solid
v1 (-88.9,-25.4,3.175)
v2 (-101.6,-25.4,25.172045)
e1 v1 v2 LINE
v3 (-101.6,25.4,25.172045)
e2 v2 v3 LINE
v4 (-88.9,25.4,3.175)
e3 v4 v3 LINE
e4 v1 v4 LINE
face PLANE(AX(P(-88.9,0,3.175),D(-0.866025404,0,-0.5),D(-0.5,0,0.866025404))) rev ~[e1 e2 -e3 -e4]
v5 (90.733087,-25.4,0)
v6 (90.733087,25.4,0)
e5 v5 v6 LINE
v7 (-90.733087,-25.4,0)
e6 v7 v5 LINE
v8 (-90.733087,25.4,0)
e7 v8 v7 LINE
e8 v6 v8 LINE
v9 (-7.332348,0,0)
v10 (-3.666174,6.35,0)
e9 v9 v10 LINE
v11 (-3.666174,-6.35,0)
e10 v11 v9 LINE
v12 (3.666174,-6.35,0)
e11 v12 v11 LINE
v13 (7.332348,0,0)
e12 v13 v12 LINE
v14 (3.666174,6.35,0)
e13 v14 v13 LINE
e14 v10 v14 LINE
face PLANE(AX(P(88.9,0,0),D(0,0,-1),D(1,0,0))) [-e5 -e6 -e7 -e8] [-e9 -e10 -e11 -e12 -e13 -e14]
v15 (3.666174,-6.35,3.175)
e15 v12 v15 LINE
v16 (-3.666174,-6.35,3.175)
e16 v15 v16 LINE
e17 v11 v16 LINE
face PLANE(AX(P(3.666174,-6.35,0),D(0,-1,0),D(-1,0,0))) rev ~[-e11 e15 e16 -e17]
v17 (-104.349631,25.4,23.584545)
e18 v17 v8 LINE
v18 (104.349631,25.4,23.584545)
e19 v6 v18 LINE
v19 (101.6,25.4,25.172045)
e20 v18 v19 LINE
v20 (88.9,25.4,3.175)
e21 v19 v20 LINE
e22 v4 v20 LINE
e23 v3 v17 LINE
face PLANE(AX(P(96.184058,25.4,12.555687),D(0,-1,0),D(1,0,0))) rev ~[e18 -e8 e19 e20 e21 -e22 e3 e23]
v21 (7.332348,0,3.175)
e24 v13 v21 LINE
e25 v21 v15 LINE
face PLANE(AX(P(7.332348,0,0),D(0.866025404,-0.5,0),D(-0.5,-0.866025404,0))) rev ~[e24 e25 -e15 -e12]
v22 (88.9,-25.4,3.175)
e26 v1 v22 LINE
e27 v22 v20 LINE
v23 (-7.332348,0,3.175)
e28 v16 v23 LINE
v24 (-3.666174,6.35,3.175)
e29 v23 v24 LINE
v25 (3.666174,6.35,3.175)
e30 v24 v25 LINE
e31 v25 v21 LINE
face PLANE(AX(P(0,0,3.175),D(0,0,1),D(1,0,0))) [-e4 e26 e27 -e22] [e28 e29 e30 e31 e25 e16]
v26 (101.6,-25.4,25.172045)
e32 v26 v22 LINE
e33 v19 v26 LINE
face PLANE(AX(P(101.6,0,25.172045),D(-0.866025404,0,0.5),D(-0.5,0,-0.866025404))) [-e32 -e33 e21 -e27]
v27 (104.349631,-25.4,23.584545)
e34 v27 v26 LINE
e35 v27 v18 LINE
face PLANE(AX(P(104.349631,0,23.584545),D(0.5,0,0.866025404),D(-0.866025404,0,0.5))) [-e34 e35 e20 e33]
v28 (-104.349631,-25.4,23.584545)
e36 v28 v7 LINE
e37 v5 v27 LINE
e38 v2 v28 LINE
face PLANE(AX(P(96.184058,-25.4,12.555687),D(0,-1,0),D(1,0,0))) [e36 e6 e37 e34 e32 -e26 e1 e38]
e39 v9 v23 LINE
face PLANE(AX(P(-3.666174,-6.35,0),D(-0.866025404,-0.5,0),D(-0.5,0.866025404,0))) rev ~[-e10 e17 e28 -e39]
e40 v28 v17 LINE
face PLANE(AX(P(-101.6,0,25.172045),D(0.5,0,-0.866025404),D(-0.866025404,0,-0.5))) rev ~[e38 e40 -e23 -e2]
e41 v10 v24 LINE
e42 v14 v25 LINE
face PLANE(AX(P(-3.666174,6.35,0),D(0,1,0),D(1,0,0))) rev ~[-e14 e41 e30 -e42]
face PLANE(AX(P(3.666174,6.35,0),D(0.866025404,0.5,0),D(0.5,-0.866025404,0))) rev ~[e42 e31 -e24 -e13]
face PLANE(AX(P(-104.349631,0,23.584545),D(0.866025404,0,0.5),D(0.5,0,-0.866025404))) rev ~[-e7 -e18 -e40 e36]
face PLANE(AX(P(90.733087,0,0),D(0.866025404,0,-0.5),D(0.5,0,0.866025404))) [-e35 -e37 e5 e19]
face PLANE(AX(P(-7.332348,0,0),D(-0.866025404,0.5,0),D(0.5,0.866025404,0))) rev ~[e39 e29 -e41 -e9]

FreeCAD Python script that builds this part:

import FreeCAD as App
import Part
import Sketcher
from FreeCAD import Vector
Q = App.Units.Quantity


def add_polygon(sketch, points):
    """Adds a closed chain of lines whose ends are joined by coincident constraints."""
    first, n = sketch.GeometryCount, len(points)
    for a, b in zip(points, points[1:] + points[:1]):
        sketch.addGeometry(Part.LineSegment(App.Vector(*a, 0), App.Vector(*b, 0)), False)
    for i in range(n):
        sketch.addConstraint(Sketcher.Constraint("Coincident", first + i, 2, first + (i + 1) % n, 1))

doc = App.newDocument("Part")
body = doc.addObject("PartDesign::Body", "Body")

sketch1 = body.newObject("Sketcher::SketchObject", "Sketch")
sketch1.AttachmentSupport = (doc.getObject("XY_Plane"), [""])
sketch1.MapMode = "FlatFace"
add_polygon(sketch1, [(-89, 25), (-89, -25), (89, -25), (89, 25)])
add_polygon(sketch1, [(4, -6), (-4, -6), (-7, 0), (-4, 6), (4, 6), (7, 0)])
sketch1.addConstraint(Sketcher.Constraint("Vertical", 0))
sketch1.addConstraint(Sketcher.Constraint("Horizontal", 1))
sketch1.addConstraint(Sketcher.Constraint("Vertical", 2))
sketch1.addConstraint(Sketcher.Constraint("Horizontal", 3))
sketch1.addConstraint(Sketcher.Constraint("Horizontal", 4))
sketch1.addConstraint(Sketcher.Constraint("Horizontal", 7))
sketch1.addConstraint(Sketcher.Constraint("Symmetric", 0, 2, 2, 2, -1, 1))
sketch1.addConstraint(Sketcher.Constraint("Symmetric", 4, 2, 7, 2, -1, 1))
sketch1.addConstraint(Sketcher.Constraint("Symmetric", 5, 2, 8, 2, -1, 1))
sketch1.addConstraint(Sketcher.Constraint("PointOnObject", 5, 2, -1))
sketch1.addConstraint(Sketcher.Constraint("Parallel", 6, 9))
sketch1.addConstraint(Sketcher.Constraint("Vertical", 4, 2, 6, 2))
sketch1.addConstraint(Sketcher.Constraint("DistanceX", 1, 1, 1, 2, Q("7 in")))
sketch1.addConstraint(Sketcher.Constraint("DistanceY", 0, 2, 0, 1, Q("2 in")))
sketch1.addConstraint(Sketcher.Constraint("Angle", 5, Q("120 deg")))
sketch1.addConstraint(Sketcher.Constraint("DistanceY", 4, 2, 6, 2, Q("0.5 in")))
sketch1.addConstraint(Sketcher.Constraint("DistanceX", 4, 2, 4, 1, 7.332348))
pad1 = body.newObject("PartDesign::Pad", "Pad")
pad1.Profile = sketch1
pad1.Length = Q("0.125 in")

sketch2 = body.newObject("Sketcher::SketchObject", "Sketch001")
sketch2.AttachmentSupport = (doc.getObject("XZ_Plane"), [""])
sketch2.MapMode = "FlatFace"
add_polygon(sketch2, [(-104.3, 23.6), (-90.7, 0), (-88.9, 0), (-88.9, 3.2), (-101.6, 25.2)])
add_polygon(sketch2, [(104.3, 23.6), (101.6, 25.2), (88.9, 3.2), (88.9, 0), (90.7, 0)])
sketch2.addConstraint(Sketcher.Constraint("Horizontal", 1))
sketch2.addConstraint(Sketcher.Constraint("Vertical", 2))
sketch2.addConstraint(Sketcher.Constraint("Vertical", 7))
sketch2.addConstraint(Sketcher.Constraint("Horizontal", 8))
sketch2.addConstraint(Sketcher.Constraint("Symmetric", 1, 2, 7, 2, -1, 1))
sketch2.addConstraint(Sketcher.Constraint("Symmetric", 3, 2, 5, 2, -2))
sketch2.addConstraint(Sketcher.Constraint("Symmetric", 0, 2, 8, 2, -2))
sketch2.addConstraint(Sketcher.Constraint("Symmetric", 4, 2, 9, 2, -2))
sketch2.addConstraint(Sketcher.Constraint("Parallel", 0, 3))
sketch2.addConstraint(Sketcher.Constraint("Perpendicular", 3, 4))
sketch2.addConstraint(Sketcher.Constraint("Perpendicular", 5, 6))
sketch2.addConstraint(Sketcher.Constraint("Distance", 3, Q("1 in")))
sketch2.addConstraint(Sketcher.Constraint("DistanceX", 3, 2, -1, 1, Q("4 in")))
sketch2.addConstraint(Sketcher.Constraint("Angle", 0, Q("-60 deg")))
sketch2.addConstraint(Sketcher.Constraint("DistanceY", 2, 1, 2, 2, Q("0.125 in")))
sketch2.addConstraint(Sketcher.Constraint("Distance", 4, Q("0.125 in")))
pad2 = body.newObject("PartDesign::Pad", "Pad001")
pad2.Profile = sketch2
pad2.Length = Q("2 in")
pad2.Midplane = True

doc.recompute()
